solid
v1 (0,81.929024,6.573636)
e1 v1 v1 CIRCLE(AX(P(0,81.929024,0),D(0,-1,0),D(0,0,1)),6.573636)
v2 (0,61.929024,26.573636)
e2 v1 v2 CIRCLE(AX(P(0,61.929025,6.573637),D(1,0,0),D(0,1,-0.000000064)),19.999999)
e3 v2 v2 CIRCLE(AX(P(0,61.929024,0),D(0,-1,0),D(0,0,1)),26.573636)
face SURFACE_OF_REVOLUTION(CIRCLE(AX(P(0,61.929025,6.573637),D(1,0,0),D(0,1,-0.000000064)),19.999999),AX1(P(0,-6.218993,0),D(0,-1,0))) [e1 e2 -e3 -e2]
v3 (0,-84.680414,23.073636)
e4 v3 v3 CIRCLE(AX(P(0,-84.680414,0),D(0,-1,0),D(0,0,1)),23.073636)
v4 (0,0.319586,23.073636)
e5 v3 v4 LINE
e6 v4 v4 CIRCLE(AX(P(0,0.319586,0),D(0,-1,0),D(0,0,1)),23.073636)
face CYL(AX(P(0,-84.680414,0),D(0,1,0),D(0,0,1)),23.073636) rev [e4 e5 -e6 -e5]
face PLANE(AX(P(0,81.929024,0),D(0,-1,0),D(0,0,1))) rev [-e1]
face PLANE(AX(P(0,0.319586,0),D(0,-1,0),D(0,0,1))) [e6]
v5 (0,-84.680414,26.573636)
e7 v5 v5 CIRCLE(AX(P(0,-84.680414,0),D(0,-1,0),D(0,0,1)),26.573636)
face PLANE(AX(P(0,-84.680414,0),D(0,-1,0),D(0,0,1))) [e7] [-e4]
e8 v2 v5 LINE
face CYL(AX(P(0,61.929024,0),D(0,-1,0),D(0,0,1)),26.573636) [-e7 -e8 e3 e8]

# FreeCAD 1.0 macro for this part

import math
import FreeCAD as App
import Part
import Sketcher

doc = App.newDocument("Part")
body = doc.addObject("PartDesign::Body", "Body")

# Sketch on YZ plane
sketch1 = doc.addObject("Sketcher::SketchObject", "Sketch")
body.addObject(sketch1)
sketch1.AttachmentSupport = (doc.YZ_Plane, [""])
sketch1.MapMode = "FlatFace"
sketch1.addGeometry([
    Part.LineSegment(App.Vector(61.9, 26.6, 0), App.Vector(-84.7, 26.6, 0)),  # 0
    Part.LineSegment(App.Vector(-84.7, 26.6, 0), App.Vector(-84.7, 23.1, 0)),  # 1
    Part.LineSegment(App.Vector(-84.7, 23.1, 0), App.Vector(0.3, 23.1, 0)),  # 2
    Part.LineSegment(App.Vector(0.3, 23.1, 0), App.Vector(0.3, 0, 0)),  # 3
    Part.LineSegment(App.Vector(0.3, 0, 0), App.Vector(81.9, 0, 0)),  # 4
    Part.LineSegment(App.Vector(81.9, 0, 0), App.Vector(81.9, 6.6, 0)),  # 5
    Part.ArcOfCircle(Part.Circle(App.Vector(61.9, 6.6, 0), App.Vector(0, 0, 1), 20), math.radians(0), math.radians(90)),  # 6
], False)
sketch1.addConstraint([
    Sketcher.Constraint("Coincident", 0, 2, 1, 1),
    Sketcher.Constraint("Coincident", 1, 2, 2, 1),
    Sketcher.Constraint("Coincident", 2, 2, 3, 1),
    Sketcher.Constraint("Coincident", 3, 2, 4, 1),
    Sketcher.Constraint("Coincident", 4, 2, 5, 1),
    Sketcher.Constraint("Tangent", 5, 2, 6, 1),
    Sketcher.Constraint("Tangent", 6, 2, 0, 1),
    Sketcher.Constraint("Horizontal", 0),
    Sketcher.Constraint("Vertical", 1),
    Sketcher.Constraint("Horizontal", 2),
    Sketcher.Constraint("Vertical", 3),
    Sketcher.Constraint("Horizontal", 4),
    Sketcher.Constraint("Vertical", 5),
    Sketcher.Constraint("PointOnObject", 3, 2, -1),
    Sketcher.Constraint("Radius", 6, 19.999999),
    Sketcher.Constraint("DistanceX", 2, 1, 2, 2, 85.0),
    Sketcher.Constraint("DistanceY", 1, 2, 1, 1, 3.5),
    Sketcher.Constraint("DistanceX", 0, 2, 0, 1, 146.609438),
    Sketcher.Constraint("DistanceY", 3, 2, 3, 1, 23.073636),
    Sketcher.Constraint("DistanceX", -1, 1, 6, 3, 61.929025),
])
revolution = doc.addObject("PartDesign::Revolution", "Revolution")
body.addObject(revolution)
revolution.Profile = sketch1
revolution.ReferenceAxis = (sketch1, ["H_Axis"])
revolution.Angle = 360

doc.recompute()
